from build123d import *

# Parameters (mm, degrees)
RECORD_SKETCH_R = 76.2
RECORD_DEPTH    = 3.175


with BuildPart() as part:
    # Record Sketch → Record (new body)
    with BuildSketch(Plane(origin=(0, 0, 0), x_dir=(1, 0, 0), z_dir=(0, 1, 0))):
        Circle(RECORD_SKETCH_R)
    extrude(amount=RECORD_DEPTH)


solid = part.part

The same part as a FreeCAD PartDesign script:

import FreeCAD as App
import Part
import Sketcher
from FreeCAD import Vector
Q = App.Units.Quantity

doc = App.newDocument("Part")
body = doc.addObject("PartDesign::Body", "Body")

sketch1 = body.newObject("Sketcher::SketchObject", "Sketch")
sketch1.AttachmentSupport = (doc.getObject("XZ_Plane"), [""])
sketch1.MapMode = "FlatFace"
sketch1.addGeometry(Part.Circle(Vector(0, 0, 0), Vector(0, 0, 1), 76.2), False)
sketch1.addConstraint(Sketcher.Constraint("Coincident", 0, 3, -1, 1))
sketch1.addConstraint(Sketcher.Constraint("Diameter", 0, Q("6 in")))
pad1 = body.newObject("PartDesign::Pad", "Pad")
pad1.Profile = sketch1
pad1.Length = Q("0.125 in")
pad1.Reversed = True

doc.recompute()
